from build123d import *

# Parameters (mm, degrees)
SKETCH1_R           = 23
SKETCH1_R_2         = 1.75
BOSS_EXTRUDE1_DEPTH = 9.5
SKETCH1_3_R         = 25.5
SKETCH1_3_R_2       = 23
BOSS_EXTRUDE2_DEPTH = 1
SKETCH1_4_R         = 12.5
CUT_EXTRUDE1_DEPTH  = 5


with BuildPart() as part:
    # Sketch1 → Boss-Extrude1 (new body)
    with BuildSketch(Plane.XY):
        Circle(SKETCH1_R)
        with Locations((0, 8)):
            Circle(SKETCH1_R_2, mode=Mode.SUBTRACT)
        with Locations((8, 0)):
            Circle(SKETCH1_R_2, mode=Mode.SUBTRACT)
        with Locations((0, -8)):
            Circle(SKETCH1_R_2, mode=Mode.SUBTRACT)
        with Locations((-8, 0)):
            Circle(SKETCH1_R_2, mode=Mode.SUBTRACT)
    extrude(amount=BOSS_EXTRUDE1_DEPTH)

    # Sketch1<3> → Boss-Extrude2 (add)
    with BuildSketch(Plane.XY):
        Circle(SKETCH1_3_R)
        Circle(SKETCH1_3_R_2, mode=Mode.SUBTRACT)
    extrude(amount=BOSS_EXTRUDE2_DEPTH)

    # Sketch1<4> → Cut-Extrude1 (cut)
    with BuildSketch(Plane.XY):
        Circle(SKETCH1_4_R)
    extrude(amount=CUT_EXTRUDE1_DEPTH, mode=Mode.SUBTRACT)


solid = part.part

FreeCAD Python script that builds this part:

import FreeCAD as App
import Part
import Sketcher

V = App.Vector

doc = App.newDocument("Part")
body = doc.addObject("PartDesign::Body", "Body")

sketch1 = body.newObject("Sketcher::SketchObject", "Sketch")
sketch1.AttachmentSupport = (doc.getObject("XY_Plane"), [""])
sketch1.MapMode = "FlatFace"
sketch1.addGeometry([
    Part.Circle(V(0, 0, 0), V(0, 0, 1), 23),
    Part.Circle(V(0, -8, 0), V(0, 0, 1), 1.8),
    Part.Circle(V(-8, 0, 0), V(0, 0, 1), 1.8),
    Part.Circle(V(8, 0, 0), V(0, 0, 1), 1.8),
    Part.Circle(V(0, 8, 0), V(0, 0, 1), 1.8),
], False)
sketch1.addConstraint([
    Sketcher.Constraint("Coincident", 0, 3, -1, 1),
    Sketcher.Constraint("Equal", 1, 2),
    Sketcher.Constraint("Equal", 2, 3),
    Sketcher.Constraint("Equal", 3, 4),
    Sketcher.Constraint("Symmetric", 2, 3, 3, 3, -1, 1),
    Sketcher.Constraint("Symmetric", 1, 3, 4, 3, -1, 1),
    Sketcher.Constraint("PointOnObject", 1, 3, -2),
    Sketcher.Constraint("PointOnObject", 2, 3, -1),
    Sketcher.Constraint("Diameter", 0, 46.0),
    Sketcher.Constraint("Diameter", 1, 3.5),
    Sketcher.Constraint("DistanceY", 1, 3, -1, 1, 8.0),
    Sketcher.Constraint("DistanceX", 2, 3, -1, 1, 8.0),
])
pad1 = body.newObject("PartDesign::Pad", "Pad")
pad1.Profile = sketch1
pad1.Length = 9.5

sketch2 = body.newObject("Sketcher::SketchObject", "Sketch001")
sketch2.AttachmentSupport = (doc.getObject("XY_Plane"), [""])
sketch2.MapMode = "FlatFace"
sketch2.addGeometry([
    Part.Circle(V(0, 0, 0), V(0, 0, 1), 26),
    Part.Circle(V(0, 0, 0), V(0, 0, 1), 23),
], False)
sketch2.addConstraint([
    Sketcher.Constraint("Coincident", 0, 3, -1, 1),
    Sketcher.Constraint("Coincident", 1, 3, -1, 1),
    Sketcher.Constraint("Diameter", 0, 51.0),
    Sketcher.Constraint("Diameter", 1, 46.0),
])
pad2 = body.newObject("PartDesign::Pad", "Pad001")
pad2.Profile = sketch2
pad2.Length = 1

sketch3 = body.newObject("Sketcher::SketchObject", "Sketch002")
sketch3.AttachmentSupport = (doc.getObject("XY_Plane"), [""])
sketch3.MapMode = "FlatFace"
sketch3.addGeometry(Part.Circle(V(0, 0, 0), V(0, 0, 1), 12), False)
sketch3.addConstraint([
    Sketcher.Constraint("Coincident", 0, 3, -1, 1),
    Sketcher.Constraint("Diameter", 0, 25.0),
])
pocket1 = body.newObject("PartDesign::Pocket", "Pocket")
pocket1.Profile = sketch3
pocket1.Length = 5
pocket1.Reversed = True

doc.recompute()
